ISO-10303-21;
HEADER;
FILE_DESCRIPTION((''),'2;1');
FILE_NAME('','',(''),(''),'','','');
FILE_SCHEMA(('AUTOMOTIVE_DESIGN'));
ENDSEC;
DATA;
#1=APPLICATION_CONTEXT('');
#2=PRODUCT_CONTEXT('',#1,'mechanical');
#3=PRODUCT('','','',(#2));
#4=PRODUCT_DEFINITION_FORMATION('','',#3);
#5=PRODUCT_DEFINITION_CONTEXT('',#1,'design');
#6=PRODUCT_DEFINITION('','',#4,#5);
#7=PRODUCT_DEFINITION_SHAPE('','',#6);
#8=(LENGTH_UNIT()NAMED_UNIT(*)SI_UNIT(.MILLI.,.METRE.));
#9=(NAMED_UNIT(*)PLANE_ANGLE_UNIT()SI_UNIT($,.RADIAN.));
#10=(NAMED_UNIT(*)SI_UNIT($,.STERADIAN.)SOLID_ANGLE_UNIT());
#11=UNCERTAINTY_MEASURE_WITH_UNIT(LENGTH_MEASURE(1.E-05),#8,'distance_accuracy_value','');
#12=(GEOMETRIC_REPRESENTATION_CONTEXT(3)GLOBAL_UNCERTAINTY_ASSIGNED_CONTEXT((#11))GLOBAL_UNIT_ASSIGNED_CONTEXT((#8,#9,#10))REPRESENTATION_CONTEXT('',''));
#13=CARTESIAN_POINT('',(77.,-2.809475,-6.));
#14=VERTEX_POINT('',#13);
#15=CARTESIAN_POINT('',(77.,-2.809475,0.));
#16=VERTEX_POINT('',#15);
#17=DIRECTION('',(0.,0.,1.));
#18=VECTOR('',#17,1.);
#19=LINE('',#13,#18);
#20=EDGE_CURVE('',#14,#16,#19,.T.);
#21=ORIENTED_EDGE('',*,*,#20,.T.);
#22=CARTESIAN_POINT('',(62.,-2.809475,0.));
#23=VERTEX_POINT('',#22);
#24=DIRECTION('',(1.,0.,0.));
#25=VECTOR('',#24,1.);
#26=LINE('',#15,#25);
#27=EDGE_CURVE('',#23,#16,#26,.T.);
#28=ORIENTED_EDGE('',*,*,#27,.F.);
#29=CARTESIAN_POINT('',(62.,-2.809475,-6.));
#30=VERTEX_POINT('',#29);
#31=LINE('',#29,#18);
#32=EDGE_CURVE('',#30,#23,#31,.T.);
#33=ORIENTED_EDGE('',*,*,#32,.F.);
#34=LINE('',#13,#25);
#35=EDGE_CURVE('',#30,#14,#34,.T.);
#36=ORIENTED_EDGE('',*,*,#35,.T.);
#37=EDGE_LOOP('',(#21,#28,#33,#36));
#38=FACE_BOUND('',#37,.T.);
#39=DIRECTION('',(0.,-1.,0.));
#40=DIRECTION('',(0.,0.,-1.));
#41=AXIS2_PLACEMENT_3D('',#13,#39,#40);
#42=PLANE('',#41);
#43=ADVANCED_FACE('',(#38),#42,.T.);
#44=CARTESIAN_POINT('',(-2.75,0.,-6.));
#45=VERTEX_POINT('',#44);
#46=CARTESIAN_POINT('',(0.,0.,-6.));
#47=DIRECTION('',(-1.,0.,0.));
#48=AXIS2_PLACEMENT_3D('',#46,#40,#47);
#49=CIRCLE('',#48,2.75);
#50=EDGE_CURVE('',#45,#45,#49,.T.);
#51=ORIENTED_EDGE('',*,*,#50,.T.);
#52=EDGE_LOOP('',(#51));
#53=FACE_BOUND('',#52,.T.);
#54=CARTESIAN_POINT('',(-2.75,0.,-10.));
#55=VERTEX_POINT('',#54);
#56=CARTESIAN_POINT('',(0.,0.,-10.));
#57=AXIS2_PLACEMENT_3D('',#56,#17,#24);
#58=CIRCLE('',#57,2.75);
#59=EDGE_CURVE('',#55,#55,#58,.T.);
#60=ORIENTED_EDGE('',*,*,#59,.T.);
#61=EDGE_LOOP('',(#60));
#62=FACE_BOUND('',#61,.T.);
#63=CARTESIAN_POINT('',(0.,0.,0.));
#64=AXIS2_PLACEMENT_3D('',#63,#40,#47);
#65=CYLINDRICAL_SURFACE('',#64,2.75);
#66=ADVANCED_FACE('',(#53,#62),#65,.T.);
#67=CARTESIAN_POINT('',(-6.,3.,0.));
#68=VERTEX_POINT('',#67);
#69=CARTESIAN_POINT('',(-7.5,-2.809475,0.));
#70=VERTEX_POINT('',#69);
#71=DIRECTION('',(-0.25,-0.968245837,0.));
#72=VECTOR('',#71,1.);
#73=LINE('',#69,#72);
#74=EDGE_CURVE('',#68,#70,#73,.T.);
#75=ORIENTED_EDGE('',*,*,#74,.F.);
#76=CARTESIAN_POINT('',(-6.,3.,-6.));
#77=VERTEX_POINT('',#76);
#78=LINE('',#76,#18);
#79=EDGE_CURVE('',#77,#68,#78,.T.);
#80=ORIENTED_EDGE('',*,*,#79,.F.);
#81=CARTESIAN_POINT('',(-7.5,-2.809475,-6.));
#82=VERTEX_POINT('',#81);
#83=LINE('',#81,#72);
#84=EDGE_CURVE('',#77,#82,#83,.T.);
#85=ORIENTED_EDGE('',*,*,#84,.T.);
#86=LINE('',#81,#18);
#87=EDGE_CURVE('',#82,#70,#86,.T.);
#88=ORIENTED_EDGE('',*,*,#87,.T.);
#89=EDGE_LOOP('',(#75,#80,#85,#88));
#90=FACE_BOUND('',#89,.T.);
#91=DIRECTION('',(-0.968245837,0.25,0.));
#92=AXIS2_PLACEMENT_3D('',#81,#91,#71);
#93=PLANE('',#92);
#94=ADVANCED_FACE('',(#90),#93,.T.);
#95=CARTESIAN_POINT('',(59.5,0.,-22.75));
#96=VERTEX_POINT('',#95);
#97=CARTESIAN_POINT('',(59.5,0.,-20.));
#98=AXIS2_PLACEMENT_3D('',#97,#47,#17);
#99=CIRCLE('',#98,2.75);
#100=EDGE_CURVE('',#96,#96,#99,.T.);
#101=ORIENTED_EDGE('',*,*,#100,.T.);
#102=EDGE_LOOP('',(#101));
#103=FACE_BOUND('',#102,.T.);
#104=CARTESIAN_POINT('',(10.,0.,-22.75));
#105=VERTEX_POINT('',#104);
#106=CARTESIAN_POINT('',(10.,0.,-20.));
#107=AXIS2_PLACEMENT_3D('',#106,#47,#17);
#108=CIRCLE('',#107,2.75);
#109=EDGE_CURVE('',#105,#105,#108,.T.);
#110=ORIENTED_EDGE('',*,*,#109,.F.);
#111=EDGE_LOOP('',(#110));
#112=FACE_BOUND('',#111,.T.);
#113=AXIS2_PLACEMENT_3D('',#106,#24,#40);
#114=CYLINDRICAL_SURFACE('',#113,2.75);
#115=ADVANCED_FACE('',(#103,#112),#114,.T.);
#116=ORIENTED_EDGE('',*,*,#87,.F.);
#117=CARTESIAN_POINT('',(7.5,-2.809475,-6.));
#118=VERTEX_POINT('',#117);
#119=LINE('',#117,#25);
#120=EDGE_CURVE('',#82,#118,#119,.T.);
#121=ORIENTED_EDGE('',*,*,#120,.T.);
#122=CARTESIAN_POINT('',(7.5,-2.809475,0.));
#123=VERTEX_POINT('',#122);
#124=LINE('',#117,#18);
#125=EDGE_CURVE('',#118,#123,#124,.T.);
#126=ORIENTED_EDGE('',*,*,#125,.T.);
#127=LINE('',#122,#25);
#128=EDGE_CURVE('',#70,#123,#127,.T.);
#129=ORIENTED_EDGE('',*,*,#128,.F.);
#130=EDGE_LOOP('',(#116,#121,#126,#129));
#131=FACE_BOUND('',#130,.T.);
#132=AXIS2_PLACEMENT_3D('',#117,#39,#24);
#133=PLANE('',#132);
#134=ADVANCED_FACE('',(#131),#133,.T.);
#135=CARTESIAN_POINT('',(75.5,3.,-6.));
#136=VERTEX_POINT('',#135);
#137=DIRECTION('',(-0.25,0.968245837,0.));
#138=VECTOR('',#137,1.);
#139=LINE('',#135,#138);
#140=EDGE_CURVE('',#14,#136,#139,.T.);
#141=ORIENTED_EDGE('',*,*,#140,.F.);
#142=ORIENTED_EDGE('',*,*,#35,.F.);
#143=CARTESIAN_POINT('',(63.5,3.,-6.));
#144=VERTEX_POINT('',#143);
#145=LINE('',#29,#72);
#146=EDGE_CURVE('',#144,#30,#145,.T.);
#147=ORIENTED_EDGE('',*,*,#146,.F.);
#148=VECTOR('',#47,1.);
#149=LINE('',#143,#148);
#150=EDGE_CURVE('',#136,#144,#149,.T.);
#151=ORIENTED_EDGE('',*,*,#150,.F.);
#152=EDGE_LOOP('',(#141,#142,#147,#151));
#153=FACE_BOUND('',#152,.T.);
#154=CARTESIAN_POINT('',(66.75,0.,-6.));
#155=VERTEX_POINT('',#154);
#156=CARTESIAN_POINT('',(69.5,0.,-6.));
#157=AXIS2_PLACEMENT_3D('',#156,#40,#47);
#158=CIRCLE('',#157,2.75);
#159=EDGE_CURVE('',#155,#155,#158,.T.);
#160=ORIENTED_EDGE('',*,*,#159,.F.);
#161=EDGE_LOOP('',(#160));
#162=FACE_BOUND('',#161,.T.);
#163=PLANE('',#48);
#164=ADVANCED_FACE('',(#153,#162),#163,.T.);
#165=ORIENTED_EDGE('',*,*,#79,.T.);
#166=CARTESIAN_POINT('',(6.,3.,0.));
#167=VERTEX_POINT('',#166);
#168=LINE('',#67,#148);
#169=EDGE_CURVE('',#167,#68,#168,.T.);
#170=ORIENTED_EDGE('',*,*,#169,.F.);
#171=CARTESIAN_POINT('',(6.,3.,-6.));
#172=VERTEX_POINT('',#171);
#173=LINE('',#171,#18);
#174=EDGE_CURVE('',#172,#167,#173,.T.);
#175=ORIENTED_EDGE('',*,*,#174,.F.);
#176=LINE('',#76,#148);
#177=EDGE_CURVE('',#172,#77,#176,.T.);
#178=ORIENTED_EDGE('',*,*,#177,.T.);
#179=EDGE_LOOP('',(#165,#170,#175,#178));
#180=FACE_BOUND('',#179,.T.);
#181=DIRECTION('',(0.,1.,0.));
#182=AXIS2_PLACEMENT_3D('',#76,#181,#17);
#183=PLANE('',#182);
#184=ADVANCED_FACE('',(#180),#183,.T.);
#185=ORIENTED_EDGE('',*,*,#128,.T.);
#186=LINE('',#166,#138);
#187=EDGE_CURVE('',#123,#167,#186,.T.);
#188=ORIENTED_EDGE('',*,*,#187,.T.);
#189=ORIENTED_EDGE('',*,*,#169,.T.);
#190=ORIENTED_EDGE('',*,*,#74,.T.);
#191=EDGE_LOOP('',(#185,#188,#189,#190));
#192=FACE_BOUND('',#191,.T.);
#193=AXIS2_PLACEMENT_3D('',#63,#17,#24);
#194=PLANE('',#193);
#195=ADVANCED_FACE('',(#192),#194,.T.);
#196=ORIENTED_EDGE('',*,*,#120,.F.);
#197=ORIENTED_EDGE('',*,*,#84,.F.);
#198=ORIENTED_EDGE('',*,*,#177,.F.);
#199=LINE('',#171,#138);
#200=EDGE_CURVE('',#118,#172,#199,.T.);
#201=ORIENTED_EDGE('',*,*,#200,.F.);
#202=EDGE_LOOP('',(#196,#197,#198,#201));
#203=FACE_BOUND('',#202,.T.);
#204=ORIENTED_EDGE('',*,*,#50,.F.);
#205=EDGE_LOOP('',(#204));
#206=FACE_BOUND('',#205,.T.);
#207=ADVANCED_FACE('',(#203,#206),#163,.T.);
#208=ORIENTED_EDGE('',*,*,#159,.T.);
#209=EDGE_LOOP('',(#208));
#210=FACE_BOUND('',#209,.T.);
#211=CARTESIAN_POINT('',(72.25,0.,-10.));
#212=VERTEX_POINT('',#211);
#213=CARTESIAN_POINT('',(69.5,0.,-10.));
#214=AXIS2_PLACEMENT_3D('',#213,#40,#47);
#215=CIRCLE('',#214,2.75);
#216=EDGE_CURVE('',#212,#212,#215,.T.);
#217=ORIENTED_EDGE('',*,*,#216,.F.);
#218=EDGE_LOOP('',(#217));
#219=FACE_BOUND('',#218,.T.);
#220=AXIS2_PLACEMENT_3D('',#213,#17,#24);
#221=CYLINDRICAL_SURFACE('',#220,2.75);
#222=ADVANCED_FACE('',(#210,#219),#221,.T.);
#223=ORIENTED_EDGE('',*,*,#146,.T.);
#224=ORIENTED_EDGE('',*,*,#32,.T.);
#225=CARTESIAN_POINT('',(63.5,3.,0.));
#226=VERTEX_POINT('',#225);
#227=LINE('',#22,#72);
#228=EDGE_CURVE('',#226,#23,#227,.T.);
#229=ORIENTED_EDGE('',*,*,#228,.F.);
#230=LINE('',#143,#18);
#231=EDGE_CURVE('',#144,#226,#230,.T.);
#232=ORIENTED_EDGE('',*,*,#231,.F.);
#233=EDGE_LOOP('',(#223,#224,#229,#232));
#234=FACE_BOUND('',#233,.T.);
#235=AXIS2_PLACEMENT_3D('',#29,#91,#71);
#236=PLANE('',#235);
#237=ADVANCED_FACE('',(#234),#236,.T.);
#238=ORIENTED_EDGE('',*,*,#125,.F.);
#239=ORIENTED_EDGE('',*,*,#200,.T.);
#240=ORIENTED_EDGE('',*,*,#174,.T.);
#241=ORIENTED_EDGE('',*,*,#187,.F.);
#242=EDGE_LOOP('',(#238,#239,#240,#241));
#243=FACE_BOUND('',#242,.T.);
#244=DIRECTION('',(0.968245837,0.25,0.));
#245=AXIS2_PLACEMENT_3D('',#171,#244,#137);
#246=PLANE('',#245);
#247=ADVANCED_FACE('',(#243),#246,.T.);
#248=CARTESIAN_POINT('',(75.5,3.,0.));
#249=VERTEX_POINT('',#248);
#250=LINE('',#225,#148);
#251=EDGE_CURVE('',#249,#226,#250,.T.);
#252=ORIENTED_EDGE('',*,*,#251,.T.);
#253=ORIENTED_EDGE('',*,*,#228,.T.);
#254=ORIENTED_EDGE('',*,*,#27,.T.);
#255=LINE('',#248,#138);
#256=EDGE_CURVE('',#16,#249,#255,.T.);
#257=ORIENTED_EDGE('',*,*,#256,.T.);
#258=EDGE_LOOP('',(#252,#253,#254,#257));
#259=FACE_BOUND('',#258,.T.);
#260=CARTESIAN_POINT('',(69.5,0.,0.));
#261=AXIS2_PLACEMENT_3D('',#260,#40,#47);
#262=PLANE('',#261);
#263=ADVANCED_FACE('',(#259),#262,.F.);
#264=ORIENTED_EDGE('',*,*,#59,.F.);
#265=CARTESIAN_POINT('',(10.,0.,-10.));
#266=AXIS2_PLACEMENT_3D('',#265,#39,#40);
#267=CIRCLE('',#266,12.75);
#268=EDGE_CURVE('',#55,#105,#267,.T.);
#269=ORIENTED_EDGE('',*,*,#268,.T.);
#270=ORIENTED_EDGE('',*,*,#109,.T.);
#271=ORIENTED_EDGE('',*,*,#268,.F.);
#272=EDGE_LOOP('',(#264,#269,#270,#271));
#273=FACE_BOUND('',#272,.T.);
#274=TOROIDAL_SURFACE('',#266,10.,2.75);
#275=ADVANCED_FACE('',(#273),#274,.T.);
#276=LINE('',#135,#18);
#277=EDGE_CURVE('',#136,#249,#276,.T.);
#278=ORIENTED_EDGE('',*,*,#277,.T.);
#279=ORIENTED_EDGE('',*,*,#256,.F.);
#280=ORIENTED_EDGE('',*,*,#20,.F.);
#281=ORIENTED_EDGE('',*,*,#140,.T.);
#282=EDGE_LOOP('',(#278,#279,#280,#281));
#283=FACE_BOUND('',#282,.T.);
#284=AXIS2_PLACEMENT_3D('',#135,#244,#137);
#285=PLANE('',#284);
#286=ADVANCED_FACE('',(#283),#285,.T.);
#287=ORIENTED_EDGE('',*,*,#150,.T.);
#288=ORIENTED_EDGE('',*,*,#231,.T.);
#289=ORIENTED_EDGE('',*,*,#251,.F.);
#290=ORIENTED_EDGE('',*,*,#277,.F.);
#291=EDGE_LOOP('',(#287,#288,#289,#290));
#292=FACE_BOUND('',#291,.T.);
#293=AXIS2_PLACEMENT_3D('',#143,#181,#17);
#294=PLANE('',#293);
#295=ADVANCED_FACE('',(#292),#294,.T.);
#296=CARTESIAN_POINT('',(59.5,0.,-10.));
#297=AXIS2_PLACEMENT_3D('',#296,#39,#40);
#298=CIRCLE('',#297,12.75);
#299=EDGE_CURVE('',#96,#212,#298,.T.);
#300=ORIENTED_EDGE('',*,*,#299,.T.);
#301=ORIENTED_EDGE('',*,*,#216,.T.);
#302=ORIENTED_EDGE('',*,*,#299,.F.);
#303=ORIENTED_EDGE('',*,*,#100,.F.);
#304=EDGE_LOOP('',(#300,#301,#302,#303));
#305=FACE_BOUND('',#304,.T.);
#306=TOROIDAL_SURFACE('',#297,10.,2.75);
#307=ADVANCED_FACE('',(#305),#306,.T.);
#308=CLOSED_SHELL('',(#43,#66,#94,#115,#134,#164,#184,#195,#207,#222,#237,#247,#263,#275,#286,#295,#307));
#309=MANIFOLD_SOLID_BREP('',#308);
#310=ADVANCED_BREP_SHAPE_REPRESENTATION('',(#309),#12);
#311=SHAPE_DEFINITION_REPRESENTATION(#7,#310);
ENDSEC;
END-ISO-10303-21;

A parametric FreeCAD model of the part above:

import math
import FreeCAD as App
import Part
import Sketcher

V = App.Vector
Q = App.Units.Quantity

doc = App.newDocument("Part")
body = doc.addObject("PartDesign::Body", "Body")

# Sketch on XY plane
sketch1 = doc.addObject("Sketcher::SketchObject", "Sketch")
body.addObject(sketch1)
sketch1.AttachmentSupport = (doc.XY_Plane, [""])
sketch1.MapMode = "FlatFace"
sketch1.addGeometry(Part.Circle(V(0, 0, 0), V(0, 0, 1), 2.75), False)
sketch1.addConstraint(Sketcher.Constraint("Coincident", 0, 3, -1, 1))
sketch1.addConstraint(Sketcher.Constraint("Diameter", 0, Q("5.5 mm")))

# Sketch on XZ plane
sketch2 = doc.addObject("Sketcher::SketchObject", "Sketch001")
body.addObject(sketch2)
sketch2.AttachmentSupport = (doc.XZ_Plane, [""])
sketch2.MapMode = "FlatFace"
sketch2.addGeometry(Part.LineSegment(V(0, 0, 0), V(0, -10, 0)), False)
sketch2.addGeometry(Part.ArcOfCircle(Part.Circle(V(10, -10, 0), V(0, 0, 1), 10), math.radians(180), math.radians(270)), False)
sketch2.addGeometry(Part.LineSegment(V(10, -20, 0), V(59.5, -20, 0)), False)
sketch2.addGeometry(Part.ArcOfCircle(Part.Circle(V(59.5, -10, 0), V(0, 0, 1), 10), math.radians(-90), math.radians(0)), False)
sketch2.addGeometry(Part.LineSegment(V(69.5, -10, 0), V(69.5, 0, 0)), False)
sketch2.addConstraint(Sketcher.Constraint("Tangent", 0, 2, 1, 1))
sketch2.addConstraint(Sketcher.Constraint("Tangent", 1, 2, 2, 1))
sketch2.addConstraint(Sketcher.Constraint("Tangent", 2, 2, 3, 1))
sketch2.addConstraint(Sketcher.Constraint("Tangent", 3, 2, 4, 1))
sketch2.addConstraint(Sketcher.Constraint("Vertical", 0))
sketch2.addConstraint(Sketcher.Constraint("Horizontal", 2))
sketch2.addConstraint(Sketcher.Constraint("Vertical", 4))
sketch2.addConstraint(Sketcher.Constraint("Coincident", 0, 1, -1, 1))
sketch2.addConstraint(Sketcher.Constraint("Equal", 1, 3))
sketch2.addConstraint(Sketcher.Constraint("PointOnObject", 4, 2, -1))
sketch2.addConstraint(Sketcher.Constraint("Radius", 1, Q("10 mm")))
sketch2.addConstraint(Sketcher.Constraint("DistanceY", 0, 2, 0, 1, Q("10 mm")))
sketch2.addConstraint(Sketcher.Constraint("DistanceX", 2, 1, 2, 2, Q("49.5 mm")))
doc.recompute()

additivepipe = doc.addObject("PartDesign::AdditivePipe", "AdditivePipe")
body.addObject(additivepipe)
additivepipe.Profile = sketch1
additivepipe.Spine = (sketch2, ["Edge1", "Edge2", "Edge3", "Edge4", "Edge5"])

# Sketch on XY plane
sketch3 = doc.addObject("Sketcher::SketchObject", "Sketch002")
body.addObject(sketch3)
sketch3.AttachmentSupport = (doc.XY_Plane, [""])
sketch3.MapMode = "FlatFace"
sketch3.addGeometry(Part.LineSegment(V(6, 3, 0), V(-6, 3, 0)), False)
sketch3.addGeometry(Part.LineSegment(V(-6, 3, 0), V(-7.5, -2.809475, 0)), False)
sketch3.addGeometry(Part.LineSegment(V(-7.5, -2.809475, 0), V(7.5, -2.809475, 0)), False)
sketch3.addGeometry(Part.LineSegment(V(7.5, -2.809475, 0), V(6, 3, 0)), False)
sketch3.addConstraint(Sketcher.Constraint("Coincident", 0, 2, 1, 1))
sketch3.addConstraint(Sketcher.Constraint("Coincident", 1, 2, 2, 1))
sketch3.addConstraint(Sketcher.Constraint("Coincident", 2, 2, 3, 1))
sketch3.addConstraint(Sketcher.Constraint("Coincident", 3, 2, 0, 1))
sketch3.addConstraint(Sketcher.Constraint("Horizontal", 0))
sketch3.addConstraint(Sketcher.Constraint("Horizontal", 2))
sketch3.addConstraint(Sketcher.Constraint("Equal", 1, 3))
sketch3.addConstraint(Sketcher.Constraint("DistanceX", 0, 2, 0, 1, Q("12 mm")))
sketch3.addConstraint(Sketcher.Constraint("DistanceX", 2, 1, 2, 2, Q("15 mm")))
sketch3.addConstraint(Sketcher.Constraint("Distance", 1, Q("6 mm")))
sketch3.addConstraint(Sketcher.Constraint("DistanceX", 0, 2, -1, 1, Q("6 mm")))
sketch3.addConstraint(Sketcher.Constraint("DistanceY", -1, 1, 0, 2, Q("3 mm")))
pad1 = doc.addObject("PartDesign::Pad", "Pad")
body.addObject(pad1)
pad1.Profile = sketch3
pad1.Length = 6
pad1.Reversed = True

# Sketch on XY plane
sketch4 = doc.addObject("Sketcher::SketchObject", "Sketch003")
body.addObject(sketch4)
sketch4.AttachmentSupport = (doc.XY_Plane, [""])
sketch4.MapMode = "FlatFace"
sketch4.addGeometry(Part.LineSegment(V(75.5, 3, 0), V(63.5, 3, 0)), False)
sketch4.addGeometry(Part.LineSegment(V(63.5, 3, 0), V(62, -2.809475, 0)), False)
sketch4.addGeometry(Part.LineSegment(V(62, -2.809475, 0), V(77, -2.809475, 0)), False)
sketch4.addGeometry(Part.LineSegment(V(77, -2.809475, 0), V(75.5, 3, 0)), False)
sketch4.addConstraint(Sketcher.Constraint("Coincident", 0, 2, 1, 1))
sketch4.addConstraint(Sketcher.Constraint("Coincident", 1, 2, 2, 1))
sketch4.addConstraint(Sketcher.Constraint("Coincident", 2, 2, 3, 1))
sketch4.addConstraint(Sketcher.Constraint("Coincident", 3, 2, 0, 1))
sketch4.addConstraint(Sketcher.Constraint("Horizontal", 0))
sketch4.addConstraint(Sketcher.Constraint("Horizontal", 2))
sketch4.addConstraint(Sketcher.Constraint("Equal", 1, 3))
sketch4.addConstraint(Sketcher.Constraint("DistanceX", 0, 2, 0, 1, Q("12 mm")))
sketch4.addConstraint(Sketcher.Constraint("DistanceX", 2, 1, 2, 2, Q("15 mm")))
sketch4.addConstraint(Sketcher.Constraint("Distance", 1, Q("6 mm")))
sketch4.addConstraint(Sketcher.Constraint("DistanceY", -1, 1, 0, 2, Q("3 mm")))
sketch4.addConstraint(Sketcher.Constraint("DistanceX", -1, 1, 1, 2, Q("62 mm")))
pad2 = doc.addObject("PartDesign::Pad", "Pad001")
body.addObject(pad2)
pad2.Profile = sketch4
pad2.Length = 6
pad2.Reversed = True

doc.recompute()
